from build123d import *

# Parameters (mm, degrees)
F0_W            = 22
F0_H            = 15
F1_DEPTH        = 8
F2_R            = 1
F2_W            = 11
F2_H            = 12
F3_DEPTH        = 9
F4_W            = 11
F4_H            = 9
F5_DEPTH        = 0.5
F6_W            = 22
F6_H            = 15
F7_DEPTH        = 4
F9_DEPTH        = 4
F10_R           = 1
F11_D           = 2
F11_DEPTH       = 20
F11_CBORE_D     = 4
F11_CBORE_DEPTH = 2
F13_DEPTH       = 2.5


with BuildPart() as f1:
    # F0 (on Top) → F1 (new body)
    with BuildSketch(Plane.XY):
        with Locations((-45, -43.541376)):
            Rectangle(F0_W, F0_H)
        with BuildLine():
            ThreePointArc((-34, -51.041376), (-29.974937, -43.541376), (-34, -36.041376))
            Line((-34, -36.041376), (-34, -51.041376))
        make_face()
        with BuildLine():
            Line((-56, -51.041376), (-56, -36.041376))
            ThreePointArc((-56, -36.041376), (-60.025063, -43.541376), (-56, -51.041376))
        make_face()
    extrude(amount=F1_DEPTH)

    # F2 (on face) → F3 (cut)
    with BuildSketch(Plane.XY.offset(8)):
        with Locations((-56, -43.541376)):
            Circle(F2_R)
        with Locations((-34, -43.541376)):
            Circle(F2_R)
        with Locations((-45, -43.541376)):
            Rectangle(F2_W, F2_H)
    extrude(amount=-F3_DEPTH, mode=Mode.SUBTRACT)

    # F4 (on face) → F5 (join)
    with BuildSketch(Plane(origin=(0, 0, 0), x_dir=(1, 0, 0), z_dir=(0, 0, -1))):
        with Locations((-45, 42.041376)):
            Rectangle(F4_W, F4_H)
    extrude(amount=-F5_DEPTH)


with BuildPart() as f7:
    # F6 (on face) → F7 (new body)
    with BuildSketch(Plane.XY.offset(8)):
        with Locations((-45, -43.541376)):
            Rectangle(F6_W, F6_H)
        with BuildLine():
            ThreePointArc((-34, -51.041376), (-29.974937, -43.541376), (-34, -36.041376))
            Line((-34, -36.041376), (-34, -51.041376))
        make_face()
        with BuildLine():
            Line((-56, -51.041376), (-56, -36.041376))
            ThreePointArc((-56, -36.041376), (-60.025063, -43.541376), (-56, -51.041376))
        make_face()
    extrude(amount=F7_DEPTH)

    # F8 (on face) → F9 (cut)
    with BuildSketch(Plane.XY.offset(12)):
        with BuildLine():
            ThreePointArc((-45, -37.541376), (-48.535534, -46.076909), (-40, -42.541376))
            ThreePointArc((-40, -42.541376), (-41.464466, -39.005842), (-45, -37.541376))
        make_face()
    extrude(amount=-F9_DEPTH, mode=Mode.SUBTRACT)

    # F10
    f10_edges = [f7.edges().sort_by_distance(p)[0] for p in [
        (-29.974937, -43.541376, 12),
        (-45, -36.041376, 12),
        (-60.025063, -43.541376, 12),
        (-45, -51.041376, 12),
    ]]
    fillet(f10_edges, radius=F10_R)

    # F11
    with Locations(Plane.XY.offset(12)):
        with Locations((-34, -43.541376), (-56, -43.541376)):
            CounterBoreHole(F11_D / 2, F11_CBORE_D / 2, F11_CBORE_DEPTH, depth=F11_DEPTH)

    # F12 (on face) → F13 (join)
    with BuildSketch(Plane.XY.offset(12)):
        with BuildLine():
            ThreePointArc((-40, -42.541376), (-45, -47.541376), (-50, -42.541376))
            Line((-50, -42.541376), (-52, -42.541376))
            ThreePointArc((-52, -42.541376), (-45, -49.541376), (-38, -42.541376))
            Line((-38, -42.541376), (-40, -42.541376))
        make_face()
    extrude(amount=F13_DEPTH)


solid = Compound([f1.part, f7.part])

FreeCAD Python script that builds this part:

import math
import FreeCAD as App
import Part
import Sketcher


def edges_at(feature, points):
    """Names of the edges that pass closest to the given points."""
    edges = feature.Shape.Edges
    near = lambda p: min(range(len(edges)), key=lambda i: edges[i].distToShape(Part.Vertex(*p))[0])
    return sorted({f"Edge{near(p) + 1}" for p in points})

doc = App.newDocument("Part")
body = doc.addObject("PartDesign::Body", "Body")

# Sketch on XY plane
sketch1 = body.newObject("Sketcher::SketchObject", "Sketch")
sketch1.AttachmentSupport = (doc.getObject("XY_Plane"), [""])
sketch1.MapMode = "FlatFace"
sketch1.addGeometry([
    Part.LineSegment(App.Vector(-56, -51, 0), App.Vector(-34, -51, 0)),
    Part.ArcOfCircle(Part.Circle(App.Vector(-39, -44, 0), App.Vector(0, 0, 1), 9), math.radians(-56), math.radians(56)),
    Part.LineSegment(App.Vector(-34, -36, 0), App.Vector(-56, -36, 0)),
    Part.ArcOfCircle(Part.Circle(App.Vector(-51, -44, 0), App.Vector(0, 0, 1), 9), math.radians(124), math.radians(236)),
], False)
sketch1.addConstraint([
    Sketcher.Constraint("Coincident", 0, 2, 1, 1),
    Sketcher.Constraint("Coincident", 1, 2, 2, 1),
    Sketcher.Constraint("Coincident", 2, 2, 3, 1),
    Sketcher.Constraint("Coincident", 3, 2, 0, 1),
    Sketcher.Constraint("Horizontal", 0),
    Sketcher.Constraint("Horizontal", 2),
    Sketcher.Constraint("Equal", 1, 3),
    Sketcher.Constraint("Horizontal", 1, 3, 3, 3),
    Sketcher.Constraint("Vertical", 0, 2, 1, 2),
    Sketcher.Constraint("Radius", 1, 9.0),
    Sketcher.Constraint("DistanceX", 0, 1, 0, 2, 22.0),
    Sketcher.Constraint("DistanceX", 0, 2, -1, 1, 34.0),
    Sketcher.Constraint("DistanceY", 0, 2, 1, 2, 15.0),
    Sketcher.Constraint("DistanceY", 1, 3, -1, 1, 43.541376),
])
pad1 = body.newObject("PartDesign::Pad", "Pad")
pad1.Profile = sketch1
pad1.Length = 8

# Sketch on XY plane
sketch2 = body.newObject("Sketcher::SketchObject", "Sketch001")
sketch2.AttachmentSupport = (doc.getObject("XY_Plane"), [""])
sketch2.MapMode = "FlatFace"
sketch2.AttachmentOffset = App.Placement(App.Vector(0, 0, 8), App.Rotation())
sketch2.addGeometry([
    Part.Circle(App.Vector(-56, -43.5, 0), App.Vector(0, 0, 1), 1),  # 0
    Part.Circle(App.Vector(-34, -43.5, 0), App.Vector(0, 0, 1), 1),  # 1
    Part.LineSegment(App.Vector(-50.5, -37.5, 0), App.Vector(-50.5, -49.5, 0)),  # 2
    Part.LineSegment(App.Vector(-50.5, -49.5, 0), App.Vector(-39.5, -49.5, 0)),  # 3
    Part.LineSegment(App.Vector(-39.5, -49.5, 0), App.Vector(-39.5, -37.5, 0)),  # 4
    Part.LineSegment(App.Vector(-39.5, -37.5, 0), App.Vector(-50.5, -37.5, 0)),  # 5
], False)
sketch2.addConstraint([
    Sketcher.Constraint("Coincident", 2, 2, 3, 1),
    Sketcher.Constraint("Coincident", 3, 2, 4, 1),
    Sketcher.Constraint("Coincident", 4, 2, 5, 1),
    Sketcher.Constraint("Coincident", 5, 2, 2, 1),
    Sketcher.Constraint("Vertical", 2),
    Sketcher.Constraint("Horizontal", 3),
    Sketcher.Constraint("Vertical", 4),
    Sketcher.Constraint("Horizontal", 5),
    Sketcher.Constraint("Equal", 0, 1),
    Sketcher.Constraint("Horizontal", 0, 3, 1, 3),
    Sketcher.Constraint("Diameter", 0, 2.0),
    Sketcher.Constraint("DistanceX", 3, 1, 3, 2, 11.0),
    Sketcher.Constraint("DistanceY", 2, 2, 2, 1, 12.0),
    Sketcher.Constraint("DistanceX", 0, 3, -1, 1, 56.0),
    Sketcher.Constraint("DistanceX", 1, 3, -1, 1, 34.0),
    Sketcher.Constraint("DistanceY", 2, 2, 0, 3, 6.0),
    Sketcher.Constraint("DistanceX", 2, 2, -1, 1, 50.5),
    Sketcher.Constraint("DistanceY", 0, 3, -1, 1, 43.541376),
])
pocket1 = body.newObject("PartDesign::Pocket", "Pocket")
pocket1.Profile = sketch2
pocket1.Length = 9

# Sketch on XY plane
sketch3 = body.newObject("Sketcher::SketchObject", "Sketch002")
sketch3.AttachmentSupport = (doc.getObject("XY_Plane"), [""])
sketch3.MapMode = "FlatFace"
sketch3.addGeometry([
    Part.LineSegment(App.Vector(-50, -47, 0), App.Vector(-50, -38, 0)),
    Part.LineSegment(App.Vector(-50, -38, 0), App.Vector(-40, -38, 0)),
    Part.LineSegment(App.Vector(-40, -38, 0), App.Vector(-40, -47, 0)),
    Part.LineSegment(App.Vector(-40, -47, 0), App.Vector(-50, -47, 0)),
], False)
sketch3.addConstraint([
    Sketcher.Constraint("Coincident", 0, 2, 1, 1),
    Sketcher.Constraint("Coincident", 1, 2, 2, 1),
    Sketcher.Constraint("Coincident", 2, 2, 3, 1),
    Sketcher.Constraint("Coincident", 3, 2, 0, 1),
    Sketcher.Constraint("Vertical", 0),
    Sketcher.Constraint("Horizontal", 1),
    Sketcher.Constraint("Vertical", 2),
    Sketcher.Constraint("Horizontal", 3),
    Sketcher.Constraint("DistanceX", 1, 1, 1, 2, 11.0),
    Sketcher.Constraint("DistanceY", 0, 1, 0, 2, 9.0),
    Sketcher.Constraint("DistanceX", 0, 2, -1, 1, 50.5),
    Sketcher.Constraint("DistanceY", 0, 2, -1, 1, 37.541376),
])
pad2 = body.newObject("PartDesign::Pad", "Pad001")
pad2.Profile = sketch3
pad2.Length = 0.5
body2 = doc.addObject("PartDesign::Body", "Body001")

# Sketch on XY plane
sketch4 = body2.newObject("Sketcher::SketchObject", "Sketch003")
sketch4.AttachmentSupport = (doc.getObject("XY_Plane001"), [""])
sketch4.MapMode = "FlatFace"
sketch4.AttachmentOffset = App.Placement(App.Vector(0, 0, 8), App.Rotation())
sketch4.addGeometry([
    Part.LineSegment(App.Vector(-56, -51, 0), App.Vector(-34, -51, 0)),
    Part.ArcOfCircle(Part.Circle(App.Vector(-39, -44, 0), App.Vector(0, 0, 1), 9), math.radians(-56), math.radians(56)),
    Part.LineSegment(App.Vector(-34, -36, 0), App.Vector(-56, -36, 0)),
    Part.ArcOfCircle(Part.Circle(App.Vector(-51, -44, 0), App.Vector(0, 0, 1), 9), math.radians(124), math.radians(236)),
], False)
sketch4.addConstraint([
    Sketcher.Constraint("Coincident", 0, 2, 1, 1),
    Sketcher.Constraint("Coincident", 1, 2, 2, 1),
    Sketcher.Constraint("Coincident", 2, 2, 3, 1),
    Sketcher.Constraint("Coincident", 3, 2, 0, 1),
    Sketcher.Constraint("Horizontal", 0),
    Sketcher.Constraint("Horizontal", 2),
    Sketcher.Constraint("Equal", 1, 3),
    Sketcher.Constraint("Horizontal", 1, 3, 3, 3),
    Sketcher.Constraint("Vertical", 0, 2, 1, 2),
    Sketcher.Constraint("Radius", 1, 9.0),
    Sketcher.Constraint("DistanceX", 0, 1, 0, 2, 22.0),
    Sketcher.Constraint("DistanceX", 0, 2, -1, 1, 34.0),
    Sketcher.Constraint("DistanceY", 0, 2, 1, 2, 15.0),
    Sketcher.Constraint("DistanceY", 1, 3, -1, 1, 43.541376),
])
pad3 = body2.newObject("PartDesign::Pad", "Pad002")
pad3.Profile = sketch4
pad3.Length = 4

# Sketch on XY plane
sketch5 = body2.newObject("Sketcher::SketchObject", "Sketch004")
sketch5.AttachmentSupport = (doc.getObject("XY_Plane001"), [""])
sketch5.MapMode = "FlatFace"
sketch5.AttachmentOffset = App.Placement(App.Vector(0, 0, 12), App.Rotation())
sketch5.addGeometry([
    Part.ArcOfCircle(Part.Circle(App.Vector(-45, -42.5, 0), App.Vector(0, 0, 1), 5), math.radians(90), math.radians(360)),
    Part.ArcOfCircle(Part.Circle(App.Vector(-45, -42.5, 0), App.Vector(0, 0, 1), 5), math.radians(0), math.radians(90)),
], False)
sketch5.addConstraint([
    Sketcher.Constraint("Tangent", 0, 1, 1, 2),
    Sketcher.Constraint("Coincident", 1, 1, 0, 2),
    Sketcher.Constraint("Horizontal", 0, 3, 1, 1),
    Sketcher.Constraint("Vertical", 1, 3, 0, 1),
    Sketcher.Constraint("Radius", 0, 5.0),
    Sketcher.Constraint("DistanceX", 0, 3, -1, 1, 45.0),
    Sketcher.Constraint("DistanceY", 0, 3, -1, 1, 42.541376),
])
pocket2 = body2.newObject("PartDesign::Pocket", "Pocket001")
pocket2.Profile = sketch5
pocket2.Length = 4
doc.recompute()

fillet = body2.newObject("PartDesign::Fillet", "Fillet")
fillet.Base = (pocket2, edges_at(pocket2, [
    (-29.975, -43.541, 12),
    (-45, -36.041, 12),
    (-60.025, -43.541, 12),
    (-45, -51.041, 12),
]))
fillet.Radius = 1

# Sketch on XY plane
sketch6 = body2.newObject("Sketcher::SketchObject", "Sketch005")
sketch6.AttachmentSupport = (doc.getObject("XY_Plane001"), [""])
sketch6.MapMode = "FlatFace"
sketch6.AttachmentOffset = App.Placement(App.Vector(0, 0, 12), App.Rotation())
sketch6.addGeometry([
    Part.Circle(App.Vector(-34, -43.5, 0), App.Vector(0, 0, 1), 1),
    Part.Circle(App.Vector(-56, -43.5, 0), App.Vector(0, 0, 1), 1),
], False)
sketch6.addConstraint([
    Sketcher.Constraint("Equal", 0, 1),
    Sketcher.Constraint("Horizontal", 0, 3, 1, 3),
    Sketcher.Constraint("Diameter", 0, 2.0),
    Sketcher.Constraint("DistanceX", 0, 3, -1, 1, 34.0),
    Sketcher.Constraint("DistanceX", 1, 3, -1, 1, 56.0),
    Sketcher.Constraint("DistanceY", 0, 3, -1, 1, 43.541376),
])
doc.recompute()
hole = body2.newObject("PartDesign::Hole", "Hole")
hole.Profile = sketch6
hole.ThreadType = "None"
hole.Diameter = 2
hole.DepthType = "Dimension"
hole.Depth = 20
hole.DrillPoint = "Flat"
hole.HoleCutType = "Counterbore"
hole.HoleCutDiameter = 4
hole.HoleCutDepth = 2

# Sketch on XY plane
sketch7 = body2.newObject("Sketcher::SketchObject", "Sketch006")
sketch7.AttachmentSupport = (doc.getObject("XY_Plane001"), [""])
sketch7.MapMode = "FlatFace"
sketch7.AttachmentOffset = App.Placement(App.Vector(0, 0, 12), App.Rotation())
sketch7.addGeometry([
    Part.ArcOfCircle(Part.Circle(App.Vector(-45, -42.5, 0), App.Vector(0, 0, 1), 5), math.radians(180), math.radians(360)),
    Part.LineSegment(App.Vector(-50, -42.5, 0), App.Vector(-52, -42.5, 0)),
    Part.ArcOfCircle(Part.Circle(App.Vector(-45, -42.5, 0), App.Vector(0, 0, 1), 7), math.radians(180), math.radians(360)),
    Part.LineSegment(App.Vector(-38, -42.5, 0), App.Vector(-40, -42.5, 0)),
], False)
sketch7.addConstraint([
    Sketcher.Constraint("Coincident", 0, 1, 1, 1),
    Sketcher.Constraint("Coincident", 1, 2, 2, 1),
    Sketcher.Constraint("Coincident", 2, 2, 3, 1),
    Sketcher.Constraint("Coincident", 3, 2, 0, 2),
    Sketcher.Constraint("Horizontal", 1),
    Sketcher.Constraint("Horizontal", 3),
    Sketcher.Constraint("Coincident", 2, 3, 0, 3),
    Sketcher.Constraint("Horizontal", 2, 3, 0, 1),
    Sketcher.Constraint("Horizontal", 1, 2, 2, 2),
    Sketcher.Constraint("Radius", 0, 5.0),
    Sketcher.Constraint("Radius", 2, 7.0),
    Sketcher.Constraint("DistanceX", 0, 3, -1, 1, 45.0),
    Sketcher.Constraint("DistanceY", 0, 3, -1, 1, 42.541376),
])
pad4 = body2.newObject("PartDesign::Pad", "Pad003")
pad4.Profile = sketch7
pad4.Length = 2.5

doc.recompute()
